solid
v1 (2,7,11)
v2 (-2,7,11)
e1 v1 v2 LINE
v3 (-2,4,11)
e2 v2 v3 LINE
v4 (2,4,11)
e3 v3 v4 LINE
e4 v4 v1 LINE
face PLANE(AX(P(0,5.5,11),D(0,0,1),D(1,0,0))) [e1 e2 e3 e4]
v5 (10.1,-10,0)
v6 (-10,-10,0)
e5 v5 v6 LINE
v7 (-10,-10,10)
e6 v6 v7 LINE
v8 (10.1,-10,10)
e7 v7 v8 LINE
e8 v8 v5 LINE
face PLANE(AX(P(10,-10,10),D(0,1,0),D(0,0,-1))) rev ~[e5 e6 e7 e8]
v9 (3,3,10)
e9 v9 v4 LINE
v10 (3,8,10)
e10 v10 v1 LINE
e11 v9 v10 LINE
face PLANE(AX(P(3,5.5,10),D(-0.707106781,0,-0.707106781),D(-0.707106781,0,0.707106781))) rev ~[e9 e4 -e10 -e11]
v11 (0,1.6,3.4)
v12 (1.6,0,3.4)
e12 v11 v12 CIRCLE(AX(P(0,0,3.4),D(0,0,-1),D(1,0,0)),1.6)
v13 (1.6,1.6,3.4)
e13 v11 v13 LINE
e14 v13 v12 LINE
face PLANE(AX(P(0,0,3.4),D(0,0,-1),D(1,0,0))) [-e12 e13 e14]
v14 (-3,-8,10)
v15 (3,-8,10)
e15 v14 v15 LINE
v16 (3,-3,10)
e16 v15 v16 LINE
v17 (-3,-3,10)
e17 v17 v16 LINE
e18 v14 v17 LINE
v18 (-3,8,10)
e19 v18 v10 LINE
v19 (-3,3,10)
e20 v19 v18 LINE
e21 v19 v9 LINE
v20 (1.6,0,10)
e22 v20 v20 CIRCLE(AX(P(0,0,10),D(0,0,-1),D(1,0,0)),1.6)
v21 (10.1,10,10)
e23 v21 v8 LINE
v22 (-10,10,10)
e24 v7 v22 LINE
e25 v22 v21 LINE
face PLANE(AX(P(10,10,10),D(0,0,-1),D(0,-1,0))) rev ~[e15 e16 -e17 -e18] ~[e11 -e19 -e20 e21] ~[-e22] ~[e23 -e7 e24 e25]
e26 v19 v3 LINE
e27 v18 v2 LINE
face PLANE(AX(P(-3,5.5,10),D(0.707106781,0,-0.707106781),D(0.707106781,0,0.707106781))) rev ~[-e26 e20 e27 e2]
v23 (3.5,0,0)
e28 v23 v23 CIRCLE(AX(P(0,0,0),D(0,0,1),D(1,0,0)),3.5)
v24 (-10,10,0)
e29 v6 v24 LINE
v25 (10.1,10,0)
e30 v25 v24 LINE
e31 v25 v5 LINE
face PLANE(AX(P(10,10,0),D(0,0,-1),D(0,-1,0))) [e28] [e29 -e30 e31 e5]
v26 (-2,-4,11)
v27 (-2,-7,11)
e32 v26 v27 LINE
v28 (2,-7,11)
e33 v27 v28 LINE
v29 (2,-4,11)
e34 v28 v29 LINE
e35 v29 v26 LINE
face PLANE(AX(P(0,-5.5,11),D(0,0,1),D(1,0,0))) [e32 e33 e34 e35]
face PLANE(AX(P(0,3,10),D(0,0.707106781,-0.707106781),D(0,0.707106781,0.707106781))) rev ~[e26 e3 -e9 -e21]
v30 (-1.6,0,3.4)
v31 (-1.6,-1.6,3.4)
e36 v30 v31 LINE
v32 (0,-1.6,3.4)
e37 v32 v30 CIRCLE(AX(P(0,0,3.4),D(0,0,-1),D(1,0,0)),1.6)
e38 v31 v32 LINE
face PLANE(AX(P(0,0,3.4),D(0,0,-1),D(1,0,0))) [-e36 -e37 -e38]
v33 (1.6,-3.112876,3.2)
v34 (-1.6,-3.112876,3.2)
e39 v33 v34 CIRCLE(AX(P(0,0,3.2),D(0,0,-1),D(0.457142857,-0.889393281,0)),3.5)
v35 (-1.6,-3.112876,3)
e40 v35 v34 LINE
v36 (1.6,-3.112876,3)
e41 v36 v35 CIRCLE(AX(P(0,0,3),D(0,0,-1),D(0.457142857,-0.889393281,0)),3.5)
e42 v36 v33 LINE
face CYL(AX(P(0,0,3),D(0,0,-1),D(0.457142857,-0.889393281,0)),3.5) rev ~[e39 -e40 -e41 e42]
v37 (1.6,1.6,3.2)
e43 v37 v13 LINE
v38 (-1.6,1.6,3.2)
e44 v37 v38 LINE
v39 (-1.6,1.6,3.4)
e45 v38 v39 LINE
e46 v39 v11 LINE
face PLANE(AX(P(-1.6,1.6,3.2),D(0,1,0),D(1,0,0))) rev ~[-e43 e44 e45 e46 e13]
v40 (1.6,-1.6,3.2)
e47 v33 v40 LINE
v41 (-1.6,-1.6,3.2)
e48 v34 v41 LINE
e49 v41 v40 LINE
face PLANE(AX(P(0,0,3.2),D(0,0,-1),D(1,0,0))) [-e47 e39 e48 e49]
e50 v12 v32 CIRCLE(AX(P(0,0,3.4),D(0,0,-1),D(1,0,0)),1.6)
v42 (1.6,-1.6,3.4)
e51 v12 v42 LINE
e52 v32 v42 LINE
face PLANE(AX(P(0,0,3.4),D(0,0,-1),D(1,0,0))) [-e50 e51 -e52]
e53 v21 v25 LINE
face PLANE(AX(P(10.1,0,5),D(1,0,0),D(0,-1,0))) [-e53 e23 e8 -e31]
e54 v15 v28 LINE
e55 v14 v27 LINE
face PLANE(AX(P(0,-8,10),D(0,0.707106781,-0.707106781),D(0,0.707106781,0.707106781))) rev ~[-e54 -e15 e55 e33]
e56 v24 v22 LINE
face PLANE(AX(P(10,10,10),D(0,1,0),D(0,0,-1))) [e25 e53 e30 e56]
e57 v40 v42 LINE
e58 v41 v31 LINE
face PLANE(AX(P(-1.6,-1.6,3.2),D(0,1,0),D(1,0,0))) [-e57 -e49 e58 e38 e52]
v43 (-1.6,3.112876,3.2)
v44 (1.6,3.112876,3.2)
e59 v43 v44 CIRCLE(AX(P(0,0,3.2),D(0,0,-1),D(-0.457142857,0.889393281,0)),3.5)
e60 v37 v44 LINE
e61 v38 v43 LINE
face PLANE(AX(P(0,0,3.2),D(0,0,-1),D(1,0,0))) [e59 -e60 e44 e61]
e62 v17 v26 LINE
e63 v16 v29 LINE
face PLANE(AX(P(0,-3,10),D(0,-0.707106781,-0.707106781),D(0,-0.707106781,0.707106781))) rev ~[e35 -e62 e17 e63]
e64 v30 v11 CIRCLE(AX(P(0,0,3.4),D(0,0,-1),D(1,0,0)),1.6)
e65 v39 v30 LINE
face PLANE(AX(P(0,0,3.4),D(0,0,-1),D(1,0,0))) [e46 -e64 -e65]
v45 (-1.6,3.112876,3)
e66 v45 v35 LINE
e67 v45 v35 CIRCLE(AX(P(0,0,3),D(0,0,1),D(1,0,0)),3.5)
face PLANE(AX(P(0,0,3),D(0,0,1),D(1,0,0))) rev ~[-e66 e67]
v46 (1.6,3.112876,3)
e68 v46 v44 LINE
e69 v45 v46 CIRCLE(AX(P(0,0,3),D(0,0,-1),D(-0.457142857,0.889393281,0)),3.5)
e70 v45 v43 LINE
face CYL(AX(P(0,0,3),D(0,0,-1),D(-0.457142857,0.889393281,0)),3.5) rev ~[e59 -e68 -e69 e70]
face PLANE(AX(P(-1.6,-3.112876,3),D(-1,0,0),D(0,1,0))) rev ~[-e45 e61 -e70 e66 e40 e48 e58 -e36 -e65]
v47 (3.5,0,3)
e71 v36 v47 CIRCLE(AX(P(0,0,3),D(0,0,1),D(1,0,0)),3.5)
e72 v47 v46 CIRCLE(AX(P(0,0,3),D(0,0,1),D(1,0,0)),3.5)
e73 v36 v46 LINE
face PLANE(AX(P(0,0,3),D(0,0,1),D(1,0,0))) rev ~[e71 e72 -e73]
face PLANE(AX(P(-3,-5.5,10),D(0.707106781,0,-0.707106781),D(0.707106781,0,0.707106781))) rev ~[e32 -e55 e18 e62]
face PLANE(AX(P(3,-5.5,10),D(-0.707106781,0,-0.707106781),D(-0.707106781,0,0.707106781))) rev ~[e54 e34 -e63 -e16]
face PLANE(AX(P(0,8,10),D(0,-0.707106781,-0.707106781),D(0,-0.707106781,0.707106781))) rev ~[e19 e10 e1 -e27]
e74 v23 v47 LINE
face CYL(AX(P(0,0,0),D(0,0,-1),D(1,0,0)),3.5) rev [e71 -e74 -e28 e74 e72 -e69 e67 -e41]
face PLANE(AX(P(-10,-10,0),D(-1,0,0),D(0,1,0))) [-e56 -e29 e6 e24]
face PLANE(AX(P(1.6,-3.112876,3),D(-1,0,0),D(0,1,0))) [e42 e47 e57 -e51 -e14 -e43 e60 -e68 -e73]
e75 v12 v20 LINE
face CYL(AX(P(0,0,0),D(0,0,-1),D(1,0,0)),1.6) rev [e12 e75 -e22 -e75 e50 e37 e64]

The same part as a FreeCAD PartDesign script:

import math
import FreeCAD as App
import Part
import Sketcher

doc = App.newDocument("Part")
body = doc.addObject("PartDesign::Body", "Body")

# Sketch on XY plane
sketch1 = body.newObject("Sketcher::SketchObject", "Sketch")
sketch1.AttachmentSupport = (doc.getObject("XY_Plane"), [""])
sketch1.MapMode = "FlatFace"
sketch1.addGeometry([
    Part.LineSegment(App.Vector(-10, 10, 0), App.Vector(-10, -10, 0)),
    Part.LineSegment(App.Vector(-10, -10, 0), App.Vector(10, -10, 0)),
    Part.LineSegment(App.Vector(10, -10, 0), App.Vector(10, 10, 0)),
    Part.LineSegment(App.Vector(10, 10, 0), App.Vector(-10, 10, 0)),
], False)
sketch1.addConstraint([
    Sketcher.Constraint("Coincident", 0, 2, 1, 1),
    Sketcher.Constraint("Coincident", 1, 2, 2, 1),
    Sketcher.Constraint("Coincident", 2, 2, 3, 1),
    Sketcher.Constraint("Coincident", 3, 2, 0, 1),
    Sketcher.Constraint("Vertical", 0),
    Sketcher.Constraint("Horizontal", 1),
    Sketcher.Constraint("Vertical", 2),
    Sketcher.Constraint("Horizontal", 3),
    Sketcher.Constraint("Symmetric", 0, 2, 2, 2, -1, 1),
    Sketcher.Constraint("Equal", 3, 0),
    Sketcher.Constraint("DistanceX", 1, 1, 1, 2, 20.0),
])
pad1 = body.newObject("PartDesign::Pad", "Pad")
pad1.Profile = sketch1
pad1.Length = 10

# Sketch on XY plane
sketch2 = body.newObject("Sketcher::SketchObject", "Sketch001")
sketch2.AttachmentSupport = (doc.getObject("XY_Plane"), [""])
sketch2.MapMode = "FlatFace"
sketch2.addGeometry(Part.Circle(App.Vector(0, 0, 0), App.Vector(0, 0, 1), 1.6), False)
sketch2.addConstraint([
    Sketcher.Constraint("Coincident", 0, 3, -1, 1),
    Sketcher.Constraint("Diameter", 0, 3.2),
])
pocket1 = body.newObject("PartDesign::Pocket", "Pocket")
pocket1.Profile = sketch2
pocket1.Type = "ThroughAll"
pocket1.Midplane = True

# Sketch on XY plane
sketch3 = body.newObject("Sketcher::SketchObject", "Sketch002")
sketch3.AttachmentSupport = (doc.getObject("XY_Plane"), [""])
sketch3.MapMode = "FlatFace"
sketch3.addGeometry(Part.Circle(App.Vector(0, 0, 0), App.Vector(0, 0, 1), 3.5), False)
sketch3.addConstraint([
    Sketcher.Constraint("Coincident", 0, 3, -1, 1),
    Sketcher.Constraint("Diameter", 0, 7.0),
])
pocket2 = body.newObject("PartDesign::Pocket", "Pocket001")
pocket2.Profile = sketch3
pocket2.Length = 3
pocket2.Reversed = True

# Sketch on XY plane
sketch4 = body.newObject("Sketcher::SketchObject", "Sketch003")
sketch4.AttachmentSupport = (doc.getObject("XY_Plane"), [""])
sketch4.MapMode = "FlatFace"
sketch4.AttachmentOffset = App.Placement(App.Vector(0, 0, 3), App.Rotation())
sketch4.addGeometry([
    Part.ArcOfCircle(Part.Circle(App.Vector(0, 0, 0), App.Vector(0, 0, 1), 3.5), math.radians(-117.202894), math.radians(-62.797106)),
    Part.LineSegment(App.Vector(-1.6, -3.112876, 0), App.Vector(-1.6, 3.112876, 0)),
    Part.ArcOfCircle(Part.Circle(App.Vector(0, 0, 0), App.Vector(0, 0, 1), 3.5), math.radians(62.797106), math.radians(117.202894)),
    Part.LineSegment(App.Vector(1.6, 3.112876, 0), App.Vector(1.6, -3.112876, 0)),
], False)
sketch4.addConstraint([
    Sketcher.Constraint("Coincident", 0, 1, 1, 1),
    Sketcher.Constraint("Coincident", 1, 2, 2, 2),
    Sketcher.Constraint("Coincident", 2, 1, 3, 1),
    Sketcher.Constraint("Coincident", 3, 2, 0, 2),
    Sketcher.Constraint("Vertical", 1),
    Sketcher.Constraint("Vertical", 3),
    Sketcher.Constraint("Coincident", 0, 3, -1, 1),
    Sketcher.Constraint("Coincident", 2, 3, -1, 1),
    Sketcher.Constraint("Equal", 0, 2),
    Sketcher.Constraint("Horizontal", 1, 2, 2, 1),
    Sketcher.Constraint("Radius", 0, 3.5),
    Sketcher.Constraint("DistanceX", 0, 1, -1, 1, 1.6),
])
pocket3 = body.newObject("PartDesign::Pocket", "Pocket002")
pocket3.Profile = sketch4
pocket3.Length = 0.2
pocket3.Reversed = True

# Sketch on XY plane
sketch5 = body.newObject("Sketcher::SketchObject", "Sketch004")
sketch5.AttachmentSupport = (doc.getObject("XY_Plane"), [""])
sketch5.MapMode = "FlatFace"
sketch5.AttachmentOffset = App.Placement(App.Vector(0, 0, 3.2), App.Rotation())
sketch5.addGeometry([
    Part.LineSegment(App.Vector(-1.6, -1.6, 0), App.Vector(-1.6, 1.6, 0)),
    Part.LineSegment(App.Vector(-1.6, 1.6, 0), App.Vector(1.6, 1.6, 0)),
    Part.LineSegment(App.Vector(1.6, 1.6, 0), App.Vector(1.6, -1.6, 0)),
    Part.LineSegment(App.Vector(1.6, -1.6, 0), App.Vector(-1.6, -1.6, 0)),
], False)
sketch5.addConstraint([
    Sketcher.Constraint("Coincident", 0, 2, 1, 1),
    Sketcher.Constraint("Coincident", 1, 2, 2, 1),
    Sketcher.Constraint("Coincident", 2, 2, 3, 1),
    Sketcher.Constraint("Coincident", 3, 2, 0, 1),
    Sketcher.Constraint("Vertical", 0),
    Sketcher.Constraint("Horizontal", 1),
    Sketcher.Constraint("Vertical", 2),
    Sketcher.Constraint("Horizontal", 3),
    Sketcher.Constraint("Symmetric", 0, 2, 2, 2, -1, 1),
    Sketcher.Constraint("Equal", 3, 0),
    Sketcher.Constraint("DistanceX", 1, 1, 1, 2, 3.2),
])
pocket4 = body.newObject("PartDesign::Pocket", "Pocket003")
pocket4.Profile = sketch5
pocket4.Length = 0.2
pocket4.Reversed = True

# Sketch on XY plane
sketch6 = body.newObject("Sketcher::SketchObject", "Sketch005")
sketch6.AttachmentSupport = (doc.getObject("XY_Plane"), [""])
sketch6.MapMode = "FlatFace"
sketch6.AttachmentOffset = App.Placement(App.Vector(0, 0, 10), App.Rotation())
sketch6.addGeometry([
    Part.LineSegment(App.Vector(-3, 8, 0), App.Vector(-3, 3, 0)),  # 0
    Part.LineSegment(App.Vector(-3, 3, 0), App.Vector(3, 3, 0)),  # 1
    Part.LineSegment(App.Vector(3, 3, 0), App.Vector(3, 8, 0)),  # 2
    Part.LineSegment(App.Vector(3, 8, 0), App.Vector(-3, 8, 0)),  # 3
    Part.LineSegment(App.Vector(-3, -3, 0), App.Vector(-3, -8, 0)),  # 4
    Part.LineSegment(App.Vector(-3, -8, 0), App.Vector(3, -8, 0)),  # 5
    Part.LineSegment(App.Vector(3, -8, 0), App.Vector(3, -3, 0)),  # 6
    Part.LineSegment(App.Vector(3, -3, 0), App.Vector(-3, -3, 0)),  # 7
], False)
sketch6.addConstraint([
    Sketcher.Constraint("Coincident", 0, 2, 1, 1),
    Sketcher.Constraint("Coincident", 1, 2, 2, 1),
    Sketcher.Constraint("Coincident", 2, 2, 3, 1),
    Sketcher.Constraint("Coincident", 3, 2, 0, 1),
    Sketcher.Constraint("Coincident", 4, 2, 5, 1),
    Sketcher.Constraint("Coincident", 5, 2, 6, 1),
    Sketcher.Constraint("Coincident", 6, 2, 7, 1),
    Sketcher.Constraint("Coincident", 7, 2, 4, 1),
    Sketcher.Constraint("Vertical", 0),
    Sketcher.Constraint("Horizontal", 1),
    Sketcher.Constraint("Vertical", 2),
    Sketcher.Constraint("Horizontal", 3),
    Sketcher.Constraint("Vertical", 4),
    Sketcher.Constraint("Horizontal", 5),
    Sketcher.Constraint("Vertical", 6),
    Sketcher.Constraint("Horizontal", 7),
    Sketcher.Constraint("Symmetric", 2, 2, 4, 2, -1, 1),
    Sketcher.Constraint("Symmetric", 0, 2, 6, 2, -1, 1),
    Sketcher.Constraint("Vertical", 3, 2, 4, 2),
    Sketcher.Constraint("DistanceX", 1, 1, 1, 2, 6.0),
    Sketcher.Constraint("DistanceY", 0, 2, 0, 1, 5.0),
    Sketcher.Constraint("DistanceY", -1, 1, 0, 2, 3.0),
])
pad2 = body.newObject("PartDesign::Pad", "Pad001")
pad2.Profile = sketch6
pad2.Length = 1
pad2.TaperAngle = -45

# Sketch on YZ plane
sketch7 = body.newObject("Sketcher::SketchObject", "Sketch006")
sketch7.AttachmentSupport = (doc.getObject("YZ_Plane"), [""])
sketch7.MapMode = "FlatFace"
sketch7.AttachmentOffset = App.Placement(App.Vector(0, 0, 10), App.Rotation())
sketch7.addGeometry([
    Part.LineSegment(App.Vector(10, 0, 0), App.Vector(10, 10, 0)),
    Part.LineSegment(App.Vector(10, 10, 0), App.Vector(-10, 10, 0)),
    Part.LineSegment(App.Vector(-10, 10, 0), App.Vector(-10, 0, 0)),
    Part.LineSegment(App.Vector(-10, 0, 0), App.Vector(10, 0, 0)),
], False)
sketch7.addConstraint([
    Sketcher.Constraint("Coincident", 0, 2, 1, 1),
    Sketcher.Constraint("Coincident", 1, 2, 2, 1),
    Sketcher.Constraint("Coincident", 2, 2, 3, 1),
    Sketcher.Constraint("Coincident", 3, 2, 0, 1),
    Sketcher.Constraint("Vertical", 0),
    Sketcher.Constraint("Horizontal", 1),
    Sketcher.Constraint("Vertical", 2),
    Sketcher.Constraint("Horizontal", 3),
    Sketcher.Constraint("Symmetric", 2, 2, 3, 2, -1, 1),
    Sketcher.Constraint("DistanceX", 1, 2, 1, 1, 20.0),
    Sketcher.Constraint("DistanceY", 0, 1, 0, 2, 10.0),
])
pad3 = body.newObject("PartDesign::Pad", "Pad002")
pad3.Profile = sketch7
pad3.Length = 0.1

doc.recompute()
